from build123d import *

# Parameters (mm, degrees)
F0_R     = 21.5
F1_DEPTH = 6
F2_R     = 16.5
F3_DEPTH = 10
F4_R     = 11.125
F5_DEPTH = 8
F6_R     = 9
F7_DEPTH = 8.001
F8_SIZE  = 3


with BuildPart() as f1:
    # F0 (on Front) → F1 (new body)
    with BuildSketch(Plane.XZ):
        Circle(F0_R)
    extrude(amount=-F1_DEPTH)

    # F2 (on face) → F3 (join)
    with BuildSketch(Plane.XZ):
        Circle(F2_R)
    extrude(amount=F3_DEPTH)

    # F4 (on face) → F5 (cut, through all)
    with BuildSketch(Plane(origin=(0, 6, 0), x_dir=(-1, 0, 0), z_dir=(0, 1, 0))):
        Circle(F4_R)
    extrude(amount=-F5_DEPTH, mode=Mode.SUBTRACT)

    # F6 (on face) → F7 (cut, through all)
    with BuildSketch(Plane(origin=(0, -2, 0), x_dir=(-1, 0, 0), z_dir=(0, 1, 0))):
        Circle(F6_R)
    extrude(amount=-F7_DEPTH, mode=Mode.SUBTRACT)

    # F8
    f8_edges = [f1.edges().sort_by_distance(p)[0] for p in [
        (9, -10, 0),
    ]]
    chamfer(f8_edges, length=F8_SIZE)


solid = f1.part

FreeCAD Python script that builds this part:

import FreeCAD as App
import Part
import Sketcher
Q = App.Units.Quantity


def edges_at(feature, points):
    """Names of the edges that pass closest to the given points."""
    edges = feature.Shape.Edges
    near = lambda p: min(range(len(edges)), key=lambda i: edges[i].distToShape(Part.Vertex(*p))[0])
    return sorted({f"Edge{near(p) + 1}" for p in points})

doc = App.newDocument("Part")
params = doc.addObject("Spreadsheet::Sheet", "Params")
for row, (alias, value) in enumerate([
    ("sketch1_diameter", "43 mm"),
    ("pad1_length", "6 mm"),
    ("sketch2_diameter", "33 mm"),
    ("pad2_length", "10 mm"),
    ("sketch3_diameter", "22.25 mm"),
    ("pocket1_length", "8 mm"),
    ("sketch4_diameter", "18 mm"),
    ("chamfer_size", "3 mm"),
], start=1):
    params.set(f"A{row}", alias)
    params.set(f"B{row}", "=" + value)
    params.setAlias(f"B{row}", alias)

body = doc.addObject("PartDesign::Body", "Body")

sketch1 = body.newObject("Sketcher::SketchObject", "Sketch")
sketch1.AttachmentSupport = (doc.getObject("XZ_Plane"), [""])
sketch1.MapMode = "FlatFace"
sketch1.addGeometry(Part.Circle(App.Vector(0, 0, 0), App.Vector(0, 0, 1), 21.5), False)
sketch1.addConstraint([
    Sketcher.Constraint("Coincident", 0, 3, -1, 1),
    Sketcher.Constraint("Diameter", 0, Q("43 mm")),
])
sketch1.setExpression("Constraints[1]", "Params.sketch1_diameter")
pad1 = body.newObject("PartDesign::Pad", "Pad")
pad1.Profile = sketch1
pad1.setExpression("Length", "Params.pad1_length")
pad1.Reversed = True

sketch2 = body.newObject("Sketcher::SketchObject", "Sketch001")
sketch2.AttachmentSupport = (doc.getObject("XZ_Plane"), [""])
sketch2.MapMode = "FlatFace"
sketch2.addGeometry(Part.Circle(App.Vector(0, 0, 0), App.Vector(0, 0, 1), 16.5), False)
sketch2.addConstraint([
    Sketcher.Constraint("Coincident", 0, 3, -1, 1),
    Sketcher.Constraint("Diameter", 0, Q("33 mm")),
])
sketch2.setExpression("Constraints[1]", "Params.sketch2_diameter")
pad2 = body.newObject("PartDesign::Pad", "Pad001")
pad2.Profile = sketch2
pad2.setExpression("Length", "Params.pad2_length")

sketch3 = body.newObject("Sketcher::SketchObject", "Sketch002")
sketch3.AttachmentSupport = (doc.getObject("XZ_Plane"), [""])
sketch3.MapMode = "FlatFace"
sketch3.AttachmentOffset = App.Placement(App.Vector(0, 0, -6), App.Rotation())
sketch3.addGeometry(Part.Circle(App.Vector(0, 0, 0), App.Vector(0, 0, 1), 11.125), False)
sketch3.addConstraint([
    Sketcher.Constraint("Coincident", 0, 3, -1, 1),
    Sketcher.Constraint("Diameter", 0, Q("22.25 mm")),
])
sketch3.setExpression("Constraints[1]", "Params.sketch3_diameter")
pocket1 = body.newObject("PartDesign::Pocket", "Pocket")
pocket1.Profile = sketch3
pocket1.setExpression("Length", "Params.pocket1_length")
pocket1.Reversed = True

sketch4 = body.newObject("Sketcher::SketchObject", "Sketch003")
sketch4.AttachmentSupport = (doc.getObject("XZ_Plane"), [""])
sketch4.MapMode = "FlatFace"
sketch4.AttachmentOffset = App.Placement(App.Vector(0, 0, 2), App.Rotation())
sketch4.addGeometry(Part.Circle(App.Vector(0, 0, 0), App.Vector(0, 0, 1), 9), False)
sketch4.addConstraint([
    Sketcher.Constraint("Coincident", 0, 3, -1, 1),
    Sketcher.Constraint("Diameter", 0, Q("18 mm")),
])
sketch4.setExpression("Constraints[1]", "Params.sketch4_diameter")
pocket2 = body.newObject("PartDesign::Pocket", "Pocket001")
pocket2.Profile = sketch4
pocket2.Type = "ThroughAll"
pocket2.Reversed = True
doc.recompute()

chamfer = body.newObject("PartDesign::Chamfer", "Chamfer")
chamfer.Base = (pocket2, edges_at(pocket2, [(9, -10, 0)]))
chamfer.setExpression("Size", "Params.chamfer_size")

doc.recompute()
